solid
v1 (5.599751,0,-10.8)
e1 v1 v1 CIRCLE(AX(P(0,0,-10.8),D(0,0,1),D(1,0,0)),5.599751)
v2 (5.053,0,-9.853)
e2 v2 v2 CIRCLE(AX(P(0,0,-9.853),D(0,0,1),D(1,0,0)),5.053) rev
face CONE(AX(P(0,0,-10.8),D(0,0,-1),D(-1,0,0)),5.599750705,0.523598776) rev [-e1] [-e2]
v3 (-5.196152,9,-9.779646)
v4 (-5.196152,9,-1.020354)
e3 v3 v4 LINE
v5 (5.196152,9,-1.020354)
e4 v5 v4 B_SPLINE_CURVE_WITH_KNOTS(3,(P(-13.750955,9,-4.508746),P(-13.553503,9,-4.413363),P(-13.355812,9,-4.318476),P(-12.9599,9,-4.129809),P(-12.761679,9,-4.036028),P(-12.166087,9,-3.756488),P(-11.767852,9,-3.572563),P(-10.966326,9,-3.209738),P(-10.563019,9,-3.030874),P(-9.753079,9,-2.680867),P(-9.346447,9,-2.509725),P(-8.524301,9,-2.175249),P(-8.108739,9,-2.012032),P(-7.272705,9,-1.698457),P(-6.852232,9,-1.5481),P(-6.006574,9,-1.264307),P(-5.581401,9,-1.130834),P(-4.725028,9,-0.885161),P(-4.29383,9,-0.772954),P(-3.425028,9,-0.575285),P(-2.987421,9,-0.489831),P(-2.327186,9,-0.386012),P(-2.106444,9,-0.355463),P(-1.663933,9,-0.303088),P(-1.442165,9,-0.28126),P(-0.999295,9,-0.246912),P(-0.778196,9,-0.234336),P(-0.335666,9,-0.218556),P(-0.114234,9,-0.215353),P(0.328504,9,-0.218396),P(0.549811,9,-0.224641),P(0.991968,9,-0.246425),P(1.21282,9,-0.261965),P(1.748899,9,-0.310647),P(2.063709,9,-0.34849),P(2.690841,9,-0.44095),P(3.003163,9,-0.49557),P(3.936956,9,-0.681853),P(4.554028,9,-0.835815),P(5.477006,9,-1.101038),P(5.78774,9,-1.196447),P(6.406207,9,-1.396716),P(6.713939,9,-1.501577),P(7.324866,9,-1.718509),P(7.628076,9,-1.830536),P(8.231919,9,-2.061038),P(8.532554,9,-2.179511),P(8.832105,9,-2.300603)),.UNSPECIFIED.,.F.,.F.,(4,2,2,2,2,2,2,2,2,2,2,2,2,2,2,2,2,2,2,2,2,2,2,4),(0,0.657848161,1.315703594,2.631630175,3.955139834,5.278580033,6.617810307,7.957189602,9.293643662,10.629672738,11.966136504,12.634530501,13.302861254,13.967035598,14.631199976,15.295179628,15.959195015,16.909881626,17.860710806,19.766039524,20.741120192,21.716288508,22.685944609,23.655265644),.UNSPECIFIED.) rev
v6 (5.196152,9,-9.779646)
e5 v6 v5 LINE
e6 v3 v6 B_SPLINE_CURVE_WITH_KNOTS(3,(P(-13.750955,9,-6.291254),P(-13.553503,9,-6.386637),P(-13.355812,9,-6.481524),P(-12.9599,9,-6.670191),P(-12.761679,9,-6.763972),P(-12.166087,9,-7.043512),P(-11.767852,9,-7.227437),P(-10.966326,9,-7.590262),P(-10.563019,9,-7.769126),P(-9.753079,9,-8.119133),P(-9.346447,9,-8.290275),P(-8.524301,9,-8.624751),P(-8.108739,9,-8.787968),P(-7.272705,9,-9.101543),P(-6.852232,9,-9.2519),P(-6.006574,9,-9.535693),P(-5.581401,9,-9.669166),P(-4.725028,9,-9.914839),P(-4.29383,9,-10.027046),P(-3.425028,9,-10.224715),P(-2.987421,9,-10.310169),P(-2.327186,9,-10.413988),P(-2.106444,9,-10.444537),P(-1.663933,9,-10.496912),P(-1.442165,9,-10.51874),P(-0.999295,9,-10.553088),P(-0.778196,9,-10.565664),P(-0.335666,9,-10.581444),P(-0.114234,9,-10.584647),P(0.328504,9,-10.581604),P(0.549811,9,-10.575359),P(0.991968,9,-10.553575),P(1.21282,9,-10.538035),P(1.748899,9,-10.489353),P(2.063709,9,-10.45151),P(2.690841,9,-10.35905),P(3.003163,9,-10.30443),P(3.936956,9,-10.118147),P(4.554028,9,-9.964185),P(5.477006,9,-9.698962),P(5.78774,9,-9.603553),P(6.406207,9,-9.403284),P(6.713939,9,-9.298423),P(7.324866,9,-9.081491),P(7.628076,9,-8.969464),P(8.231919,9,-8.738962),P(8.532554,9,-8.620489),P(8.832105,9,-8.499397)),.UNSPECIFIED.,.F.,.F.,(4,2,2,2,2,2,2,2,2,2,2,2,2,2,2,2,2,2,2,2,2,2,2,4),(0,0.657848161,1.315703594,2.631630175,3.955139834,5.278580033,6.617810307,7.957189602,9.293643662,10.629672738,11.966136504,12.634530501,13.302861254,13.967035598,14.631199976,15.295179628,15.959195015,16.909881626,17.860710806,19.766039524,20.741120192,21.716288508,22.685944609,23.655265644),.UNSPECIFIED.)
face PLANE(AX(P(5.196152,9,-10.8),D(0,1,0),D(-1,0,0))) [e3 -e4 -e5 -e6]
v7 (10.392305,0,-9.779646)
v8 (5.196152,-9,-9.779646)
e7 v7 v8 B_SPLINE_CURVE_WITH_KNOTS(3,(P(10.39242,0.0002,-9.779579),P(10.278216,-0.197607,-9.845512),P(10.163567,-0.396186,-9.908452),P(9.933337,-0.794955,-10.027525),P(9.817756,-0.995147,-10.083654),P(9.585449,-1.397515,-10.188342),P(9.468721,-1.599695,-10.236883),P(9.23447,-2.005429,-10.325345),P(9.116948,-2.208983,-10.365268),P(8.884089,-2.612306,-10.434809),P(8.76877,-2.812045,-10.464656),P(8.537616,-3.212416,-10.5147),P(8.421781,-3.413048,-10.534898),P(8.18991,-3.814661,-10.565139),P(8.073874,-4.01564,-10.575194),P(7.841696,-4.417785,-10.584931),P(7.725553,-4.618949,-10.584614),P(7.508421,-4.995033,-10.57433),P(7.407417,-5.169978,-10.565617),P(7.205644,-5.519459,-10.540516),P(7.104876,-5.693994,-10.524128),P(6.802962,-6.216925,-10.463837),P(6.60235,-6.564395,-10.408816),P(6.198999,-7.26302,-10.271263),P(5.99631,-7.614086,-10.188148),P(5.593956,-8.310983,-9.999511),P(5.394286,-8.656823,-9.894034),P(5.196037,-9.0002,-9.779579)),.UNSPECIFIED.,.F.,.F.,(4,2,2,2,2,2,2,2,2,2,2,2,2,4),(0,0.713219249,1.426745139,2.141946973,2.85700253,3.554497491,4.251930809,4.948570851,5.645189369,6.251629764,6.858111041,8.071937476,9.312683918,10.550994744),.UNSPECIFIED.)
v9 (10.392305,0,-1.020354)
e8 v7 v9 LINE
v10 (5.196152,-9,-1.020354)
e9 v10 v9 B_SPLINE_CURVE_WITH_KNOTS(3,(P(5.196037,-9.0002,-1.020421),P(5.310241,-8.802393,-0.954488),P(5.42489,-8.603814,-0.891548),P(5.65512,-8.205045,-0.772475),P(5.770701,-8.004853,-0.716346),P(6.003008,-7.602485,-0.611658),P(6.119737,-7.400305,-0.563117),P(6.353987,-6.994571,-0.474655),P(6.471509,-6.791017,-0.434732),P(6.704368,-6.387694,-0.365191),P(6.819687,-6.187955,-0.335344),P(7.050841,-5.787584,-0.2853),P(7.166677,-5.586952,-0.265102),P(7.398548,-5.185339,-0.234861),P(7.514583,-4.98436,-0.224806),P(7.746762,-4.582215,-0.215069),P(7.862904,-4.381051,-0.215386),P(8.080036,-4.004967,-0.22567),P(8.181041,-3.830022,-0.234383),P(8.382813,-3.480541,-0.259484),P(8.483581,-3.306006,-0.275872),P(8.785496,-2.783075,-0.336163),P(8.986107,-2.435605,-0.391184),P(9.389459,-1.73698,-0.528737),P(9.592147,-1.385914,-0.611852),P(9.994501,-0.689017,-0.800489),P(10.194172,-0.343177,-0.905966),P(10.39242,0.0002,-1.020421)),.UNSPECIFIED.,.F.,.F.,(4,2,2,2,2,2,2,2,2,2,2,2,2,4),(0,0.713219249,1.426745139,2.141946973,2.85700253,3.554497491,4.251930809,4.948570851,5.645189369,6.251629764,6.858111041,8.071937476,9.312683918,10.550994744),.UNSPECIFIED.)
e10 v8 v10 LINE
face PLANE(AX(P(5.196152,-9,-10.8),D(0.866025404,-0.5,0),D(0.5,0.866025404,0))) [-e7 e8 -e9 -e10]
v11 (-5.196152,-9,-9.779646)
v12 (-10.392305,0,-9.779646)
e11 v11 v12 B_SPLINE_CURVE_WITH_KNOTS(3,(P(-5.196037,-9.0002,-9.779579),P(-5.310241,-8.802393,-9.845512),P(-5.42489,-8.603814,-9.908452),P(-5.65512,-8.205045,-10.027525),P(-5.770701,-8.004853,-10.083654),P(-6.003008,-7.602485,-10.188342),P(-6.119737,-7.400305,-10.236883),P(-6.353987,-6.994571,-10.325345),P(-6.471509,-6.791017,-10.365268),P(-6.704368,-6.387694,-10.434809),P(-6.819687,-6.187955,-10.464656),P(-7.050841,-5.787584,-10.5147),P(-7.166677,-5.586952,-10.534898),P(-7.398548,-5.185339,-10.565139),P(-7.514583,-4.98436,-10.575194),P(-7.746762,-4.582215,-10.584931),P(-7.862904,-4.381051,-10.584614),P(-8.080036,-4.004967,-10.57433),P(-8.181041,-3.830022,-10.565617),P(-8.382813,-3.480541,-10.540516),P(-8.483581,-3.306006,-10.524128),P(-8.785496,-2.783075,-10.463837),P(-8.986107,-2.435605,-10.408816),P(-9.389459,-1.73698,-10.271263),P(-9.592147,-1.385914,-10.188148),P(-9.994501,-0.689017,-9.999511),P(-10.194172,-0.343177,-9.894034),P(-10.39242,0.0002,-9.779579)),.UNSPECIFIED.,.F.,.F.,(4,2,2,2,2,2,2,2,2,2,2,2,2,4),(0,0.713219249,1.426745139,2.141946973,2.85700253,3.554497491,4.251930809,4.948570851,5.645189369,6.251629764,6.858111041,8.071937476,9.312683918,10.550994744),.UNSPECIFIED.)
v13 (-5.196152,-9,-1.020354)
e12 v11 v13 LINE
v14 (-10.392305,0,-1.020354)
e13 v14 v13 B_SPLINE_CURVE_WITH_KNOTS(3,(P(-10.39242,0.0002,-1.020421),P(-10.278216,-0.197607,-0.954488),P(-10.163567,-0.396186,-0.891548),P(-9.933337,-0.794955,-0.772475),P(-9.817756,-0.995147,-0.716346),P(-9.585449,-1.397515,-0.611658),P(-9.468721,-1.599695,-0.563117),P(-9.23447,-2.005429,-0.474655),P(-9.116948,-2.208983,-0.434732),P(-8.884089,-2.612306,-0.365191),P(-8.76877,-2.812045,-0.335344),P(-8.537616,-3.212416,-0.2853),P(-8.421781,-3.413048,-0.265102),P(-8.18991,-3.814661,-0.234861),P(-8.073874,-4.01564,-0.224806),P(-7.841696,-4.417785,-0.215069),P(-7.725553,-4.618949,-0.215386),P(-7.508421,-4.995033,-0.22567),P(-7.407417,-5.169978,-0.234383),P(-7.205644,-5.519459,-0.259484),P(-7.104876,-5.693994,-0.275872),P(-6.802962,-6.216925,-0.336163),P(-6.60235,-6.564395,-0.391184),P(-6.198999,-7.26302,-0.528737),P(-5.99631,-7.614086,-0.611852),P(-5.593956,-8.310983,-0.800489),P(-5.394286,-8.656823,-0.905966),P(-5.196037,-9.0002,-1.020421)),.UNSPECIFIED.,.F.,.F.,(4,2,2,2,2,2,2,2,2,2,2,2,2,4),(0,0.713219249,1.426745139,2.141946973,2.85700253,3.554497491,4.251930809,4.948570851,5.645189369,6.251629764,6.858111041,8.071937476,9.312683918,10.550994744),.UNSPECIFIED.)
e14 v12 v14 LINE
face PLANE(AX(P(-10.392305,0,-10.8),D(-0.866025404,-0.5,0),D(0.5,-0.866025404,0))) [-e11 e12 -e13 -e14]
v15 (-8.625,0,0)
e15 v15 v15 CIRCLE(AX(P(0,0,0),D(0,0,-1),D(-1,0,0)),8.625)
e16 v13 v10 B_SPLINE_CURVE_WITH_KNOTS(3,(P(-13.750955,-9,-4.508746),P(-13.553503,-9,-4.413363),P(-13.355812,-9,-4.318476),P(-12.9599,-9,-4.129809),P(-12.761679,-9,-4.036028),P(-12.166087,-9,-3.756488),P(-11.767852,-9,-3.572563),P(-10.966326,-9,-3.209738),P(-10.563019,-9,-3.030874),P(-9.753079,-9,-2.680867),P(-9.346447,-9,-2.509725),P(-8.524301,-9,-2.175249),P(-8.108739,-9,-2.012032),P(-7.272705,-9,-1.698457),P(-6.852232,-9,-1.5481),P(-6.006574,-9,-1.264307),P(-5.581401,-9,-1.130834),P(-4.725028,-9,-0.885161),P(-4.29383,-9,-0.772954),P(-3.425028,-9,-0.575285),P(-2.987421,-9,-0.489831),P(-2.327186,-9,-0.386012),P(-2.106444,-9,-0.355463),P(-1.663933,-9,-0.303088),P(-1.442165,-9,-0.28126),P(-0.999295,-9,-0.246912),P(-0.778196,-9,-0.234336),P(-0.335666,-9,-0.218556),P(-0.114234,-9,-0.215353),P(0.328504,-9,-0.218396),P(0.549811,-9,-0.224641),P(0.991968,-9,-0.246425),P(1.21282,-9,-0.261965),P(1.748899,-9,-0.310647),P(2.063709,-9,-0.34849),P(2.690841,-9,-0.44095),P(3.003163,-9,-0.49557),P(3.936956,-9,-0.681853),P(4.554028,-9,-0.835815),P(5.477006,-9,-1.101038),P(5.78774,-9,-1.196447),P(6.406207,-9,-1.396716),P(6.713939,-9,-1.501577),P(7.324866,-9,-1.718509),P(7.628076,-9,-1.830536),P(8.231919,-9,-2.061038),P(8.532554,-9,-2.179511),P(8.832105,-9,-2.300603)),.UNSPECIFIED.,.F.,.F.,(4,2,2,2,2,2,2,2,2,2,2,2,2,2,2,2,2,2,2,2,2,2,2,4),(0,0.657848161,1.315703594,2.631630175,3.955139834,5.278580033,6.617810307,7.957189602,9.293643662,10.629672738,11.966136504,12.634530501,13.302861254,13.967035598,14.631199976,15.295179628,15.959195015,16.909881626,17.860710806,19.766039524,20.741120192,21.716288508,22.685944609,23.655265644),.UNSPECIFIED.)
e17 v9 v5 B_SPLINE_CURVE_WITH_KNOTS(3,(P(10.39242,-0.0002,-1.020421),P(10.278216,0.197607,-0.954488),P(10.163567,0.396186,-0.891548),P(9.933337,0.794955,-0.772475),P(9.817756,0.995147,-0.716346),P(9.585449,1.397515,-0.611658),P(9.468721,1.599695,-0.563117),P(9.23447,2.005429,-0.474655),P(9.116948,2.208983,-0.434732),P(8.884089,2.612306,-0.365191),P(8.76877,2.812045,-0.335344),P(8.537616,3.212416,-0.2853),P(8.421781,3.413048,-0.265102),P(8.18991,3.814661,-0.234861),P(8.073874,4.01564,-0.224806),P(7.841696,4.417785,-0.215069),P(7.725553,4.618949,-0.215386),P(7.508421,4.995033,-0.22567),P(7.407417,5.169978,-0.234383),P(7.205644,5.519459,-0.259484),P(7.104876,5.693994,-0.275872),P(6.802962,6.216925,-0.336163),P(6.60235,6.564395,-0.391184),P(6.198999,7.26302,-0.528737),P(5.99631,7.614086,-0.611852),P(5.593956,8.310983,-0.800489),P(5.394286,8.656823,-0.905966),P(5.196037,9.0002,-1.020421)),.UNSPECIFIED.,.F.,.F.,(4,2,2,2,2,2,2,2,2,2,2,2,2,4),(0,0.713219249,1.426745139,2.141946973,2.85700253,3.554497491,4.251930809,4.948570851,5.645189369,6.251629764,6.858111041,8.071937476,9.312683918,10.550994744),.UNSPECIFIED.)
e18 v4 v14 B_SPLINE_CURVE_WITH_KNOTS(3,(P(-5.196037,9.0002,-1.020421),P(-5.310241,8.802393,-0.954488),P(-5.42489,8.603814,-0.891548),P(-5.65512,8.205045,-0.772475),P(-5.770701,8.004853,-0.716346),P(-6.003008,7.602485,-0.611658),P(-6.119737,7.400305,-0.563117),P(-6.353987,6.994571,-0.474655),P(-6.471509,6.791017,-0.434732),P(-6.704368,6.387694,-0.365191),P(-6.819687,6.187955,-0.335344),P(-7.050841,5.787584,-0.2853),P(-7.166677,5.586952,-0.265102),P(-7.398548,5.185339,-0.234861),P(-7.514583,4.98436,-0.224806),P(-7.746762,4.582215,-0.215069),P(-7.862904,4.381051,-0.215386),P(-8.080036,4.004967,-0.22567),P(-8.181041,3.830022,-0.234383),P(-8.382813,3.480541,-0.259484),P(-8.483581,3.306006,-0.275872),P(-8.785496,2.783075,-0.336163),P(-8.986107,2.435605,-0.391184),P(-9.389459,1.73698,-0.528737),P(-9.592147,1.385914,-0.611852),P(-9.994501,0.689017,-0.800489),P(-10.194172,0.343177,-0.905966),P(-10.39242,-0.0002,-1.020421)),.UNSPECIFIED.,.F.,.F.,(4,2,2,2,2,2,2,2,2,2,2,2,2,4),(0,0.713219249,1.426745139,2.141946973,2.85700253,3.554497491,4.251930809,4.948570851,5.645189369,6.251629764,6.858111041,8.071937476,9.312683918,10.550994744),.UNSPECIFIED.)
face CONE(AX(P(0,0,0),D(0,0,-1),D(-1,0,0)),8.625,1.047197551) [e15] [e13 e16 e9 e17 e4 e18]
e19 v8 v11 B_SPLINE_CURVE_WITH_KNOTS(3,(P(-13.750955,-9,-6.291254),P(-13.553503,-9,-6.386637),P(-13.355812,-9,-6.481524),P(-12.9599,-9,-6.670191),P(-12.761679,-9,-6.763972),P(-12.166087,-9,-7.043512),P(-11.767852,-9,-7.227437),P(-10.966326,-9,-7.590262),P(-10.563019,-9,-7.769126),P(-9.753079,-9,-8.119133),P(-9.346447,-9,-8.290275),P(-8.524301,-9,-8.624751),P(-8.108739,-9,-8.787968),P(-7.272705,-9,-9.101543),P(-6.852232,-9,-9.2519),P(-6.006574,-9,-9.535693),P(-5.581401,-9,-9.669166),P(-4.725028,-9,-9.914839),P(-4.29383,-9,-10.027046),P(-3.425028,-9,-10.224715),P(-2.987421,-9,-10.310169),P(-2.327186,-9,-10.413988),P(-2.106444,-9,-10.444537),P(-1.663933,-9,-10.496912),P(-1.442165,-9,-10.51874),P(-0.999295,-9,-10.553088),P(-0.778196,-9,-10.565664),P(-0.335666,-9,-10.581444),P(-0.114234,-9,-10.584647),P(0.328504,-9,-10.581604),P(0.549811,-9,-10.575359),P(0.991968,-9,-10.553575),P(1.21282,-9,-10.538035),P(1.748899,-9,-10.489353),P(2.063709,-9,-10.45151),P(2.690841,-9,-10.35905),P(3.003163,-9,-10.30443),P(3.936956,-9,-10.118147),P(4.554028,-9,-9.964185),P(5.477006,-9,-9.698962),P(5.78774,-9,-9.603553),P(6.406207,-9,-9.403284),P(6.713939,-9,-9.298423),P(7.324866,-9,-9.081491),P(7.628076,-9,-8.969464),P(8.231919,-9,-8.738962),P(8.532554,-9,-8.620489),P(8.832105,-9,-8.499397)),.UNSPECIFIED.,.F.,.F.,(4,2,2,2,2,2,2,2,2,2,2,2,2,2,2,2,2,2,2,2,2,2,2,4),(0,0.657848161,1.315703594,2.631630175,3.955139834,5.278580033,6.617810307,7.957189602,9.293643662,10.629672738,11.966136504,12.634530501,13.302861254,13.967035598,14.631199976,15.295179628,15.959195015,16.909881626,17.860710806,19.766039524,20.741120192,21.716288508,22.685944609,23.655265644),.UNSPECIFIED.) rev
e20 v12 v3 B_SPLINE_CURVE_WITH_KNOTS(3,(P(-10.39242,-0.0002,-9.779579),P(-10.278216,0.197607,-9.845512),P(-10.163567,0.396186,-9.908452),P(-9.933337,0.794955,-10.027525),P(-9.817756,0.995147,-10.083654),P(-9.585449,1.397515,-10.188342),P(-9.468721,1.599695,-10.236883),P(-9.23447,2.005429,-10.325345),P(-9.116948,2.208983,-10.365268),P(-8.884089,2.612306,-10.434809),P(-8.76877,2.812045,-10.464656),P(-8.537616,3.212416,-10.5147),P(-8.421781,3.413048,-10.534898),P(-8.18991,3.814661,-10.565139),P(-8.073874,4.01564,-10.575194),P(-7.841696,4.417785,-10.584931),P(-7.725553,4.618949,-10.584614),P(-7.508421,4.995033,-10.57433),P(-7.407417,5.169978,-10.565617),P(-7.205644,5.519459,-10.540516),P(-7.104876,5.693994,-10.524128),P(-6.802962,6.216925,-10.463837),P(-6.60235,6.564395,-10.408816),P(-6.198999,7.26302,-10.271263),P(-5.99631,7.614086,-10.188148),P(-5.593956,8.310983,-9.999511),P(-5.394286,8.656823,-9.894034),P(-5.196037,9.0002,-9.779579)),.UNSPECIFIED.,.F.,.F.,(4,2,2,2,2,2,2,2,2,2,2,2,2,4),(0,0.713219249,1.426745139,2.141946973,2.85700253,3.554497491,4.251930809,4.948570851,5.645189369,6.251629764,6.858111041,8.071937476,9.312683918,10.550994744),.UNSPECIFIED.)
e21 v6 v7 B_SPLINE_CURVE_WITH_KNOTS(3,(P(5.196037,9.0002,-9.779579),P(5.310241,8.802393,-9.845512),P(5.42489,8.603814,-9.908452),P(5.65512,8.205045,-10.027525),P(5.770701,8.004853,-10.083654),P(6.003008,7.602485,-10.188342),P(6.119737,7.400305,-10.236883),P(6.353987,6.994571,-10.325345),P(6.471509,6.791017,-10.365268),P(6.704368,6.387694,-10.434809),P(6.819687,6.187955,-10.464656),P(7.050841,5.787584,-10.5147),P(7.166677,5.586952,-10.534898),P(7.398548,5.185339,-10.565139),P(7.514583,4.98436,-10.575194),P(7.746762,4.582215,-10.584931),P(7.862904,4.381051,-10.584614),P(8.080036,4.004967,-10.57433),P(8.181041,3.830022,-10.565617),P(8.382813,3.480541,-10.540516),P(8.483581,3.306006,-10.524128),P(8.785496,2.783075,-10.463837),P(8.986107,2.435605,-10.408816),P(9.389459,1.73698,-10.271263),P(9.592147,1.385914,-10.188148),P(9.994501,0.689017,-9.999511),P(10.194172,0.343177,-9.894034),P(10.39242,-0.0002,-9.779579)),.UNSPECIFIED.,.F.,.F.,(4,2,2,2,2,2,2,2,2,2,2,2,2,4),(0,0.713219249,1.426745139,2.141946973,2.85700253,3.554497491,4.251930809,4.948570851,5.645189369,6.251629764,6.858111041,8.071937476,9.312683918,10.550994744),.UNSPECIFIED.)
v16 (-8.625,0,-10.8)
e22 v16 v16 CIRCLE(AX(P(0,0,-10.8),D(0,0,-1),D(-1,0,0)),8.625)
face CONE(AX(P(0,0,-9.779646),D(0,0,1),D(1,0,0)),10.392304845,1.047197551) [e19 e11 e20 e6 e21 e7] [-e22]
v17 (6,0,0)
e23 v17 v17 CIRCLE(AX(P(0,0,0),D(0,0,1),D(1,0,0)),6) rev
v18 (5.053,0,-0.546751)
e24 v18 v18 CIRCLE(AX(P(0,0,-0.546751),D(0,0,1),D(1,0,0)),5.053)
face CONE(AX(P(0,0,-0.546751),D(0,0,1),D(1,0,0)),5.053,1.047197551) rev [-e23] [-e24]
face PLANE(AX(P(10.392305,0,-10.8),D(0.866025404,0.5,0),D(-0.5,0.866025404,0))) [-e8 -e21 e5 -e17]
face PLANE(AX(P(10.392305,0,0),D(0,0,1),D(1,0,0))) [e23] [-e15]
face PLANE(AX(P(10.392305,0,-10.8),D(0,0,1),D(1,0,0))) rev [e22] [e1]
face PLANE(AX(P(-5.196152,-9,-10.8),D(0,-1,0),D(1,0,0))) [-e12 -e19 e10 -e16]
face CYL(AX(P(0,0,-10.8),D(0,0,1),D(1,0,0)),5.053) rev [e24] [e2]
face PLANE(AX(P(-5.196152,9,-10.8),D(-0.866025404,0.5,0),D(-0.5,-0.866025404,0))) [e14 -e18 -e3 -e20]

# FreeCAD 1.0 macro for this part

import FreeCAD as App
import Part
import Sketcher

V = App.Vector
Q = App.Units.Quantity


def edges_at(feature, points):
    """Names of the edges that pass closest to the given points."""
    edges = feature.Shape.Edges
    near = lambda p: min(range(len(edges)), key=lambda i: edges[i].distToShape(Part.Vertex(*p))[0])
    return sorted({f"Edge{near(p) + 1}" for p in points})

doc = App.newDocument("Part")
body = doc.addObject("PartDesign::Body", "Body")

sketch1 = body.newObject("Sketcher::SketchObject", "Sketch")
sketch1.AttachmentSupport = (doc.getObject("XY_Plane"), [""])
sketch1.MapMode = "FlatFace"
sketch1.addGeometry(Part.LineSegment(V(10, 0, 0), V(5, 9, 0)), False)
sketch1.addGeometry(Part.LineSegment(V(5, 9, 0), V(-5, 9, 0)), False)
sketch1.addGeometry(Part.LineSegment(V(-5, 9, 0), V(-10, 0, 0)), False)
sketch1.addGeometry(Part.LineSegment(V(-10, 0, 0), V(-5, -9, 0)), False)
sketch1.addGeometry(Part.LineSegment(V(-5, -9, 0), V(5, -9, 0)), False)
sketch1.addGeometry(Part.LineSegment(V(5, -9, 0), V(10, 0, 0)), False)
sketch1.addGeometry(Part.Circle(V(0, 0, 0), V(0, 0, 1), 5), False)
sketch1.addConstraint(Sketcher.Constraint("Coincident", 0, 2, 1, 1))
sketch1.addConstraint(Sketcher.Constraint("Coincident", 1, 2, 2, 1))
sketch1.addConstraint(Sketcher.Constraint("Coincident", 2, 2, 3, 1))
sketch1.addConstraint(Sketcher.Constraint("Coincident", 3, 2, 4, 1))
sketch1.addConstraint(Sketcher.Constraint("Coincident", 4, 2, 5, 1))
sketch1.addConstraint(Sketcher.Constraint("Coincident", 5, 2, 0, 1))
sketch1.addConstraint(Sketcher.Constraint("Horizontal", 1))
sketch1.addConstraint(Sketcher.Constraint("Horizontal", 4))
sketch1.addConstraint(Sketcher.Constraint("Coincident", 6, 3, -1, 1))
sketch1.addConstraint(Sketcher.Constraint("Symmetric", 0, 2, 3, 2, -1, 1))
sketch1.addConstraint(Sketcher.Constraint("Symmetric", 2, 2, 5, 2, -1, 1))
sketch1.addConstraint(Sketcher.Constraint("PointOnObject", 2, 2, -1))
sketch1.addConstraint(Sketcher.Constraint("Parallel", 2, 5))
sketch1.addConstraint(Sketcher.Constraint("Vertical", 1, 2, 3, 2))
sketch1.addConstraint(Sketcher.Constraint("Angle", 0, Q("120 deg")))
sketch1.addConstraint(Sketcher.Constraint("Diameter", 6, 10.106))
sketch1.addConstraint(Sketcher.Constraint("DistanceY", -1, 1, 0, 2, 9.0))
sketch1.addConstraint(Sketcher.Constraint("DistanceX", 1, 2, 1, 1, 10.392305))
pad1 = body.newObject("PartDesign::Pad", "Pad")
pad1.Profile = sketch1
pad1.Length = 10.8
pad1.Reversed = True

sketch2 = body.newObject("Sketcher::SketchObject", "Sketch001")
sketch2.AttachmentSupport = (doc.getObject("XZ_Plane"), [""])
sketch2.MapMode = "FlatFace"
sketch2.addGeometry(Part.LineSegment(V(-8.6, -10.8, 0), V(-10.4, -10.8, 0)), False)
sketch2.addGeometry(Part.LineSegment(V(-10.4, -10.8, 0), V(-10.4, -9.8, 0)), False)
sketch2.addGeometry(Part.LineSegment(V(-10.4, -9.8, 0), V(-8.6, -10.8, 0)), False)
sketch2.addGeometry(Part.LineSegment(V(-10.4, -1, 0), V(-10.4, 0, 0)), False)
sketch2.addGeometry(Part.LineSegment(V(-10.4, 0, 0), V(-8.6, 0, 0)), False)
sketch2.addGeometry(Part.LineSegment(V(-8.6, 0, 0), V(-10.4, -1, 0)), False)
sketch2.addConstraint(Sketcher.Constraint("Coincident", 0, 2, 1, 1))
sketch2.addConstraint(Sketcher.Constraint("Coincident", 1, 2, 2, 1))
sketch2.addConstraint(Sketcher.Constraint("Coincident", 2, 2, 0, 1))
sketch2.addConstraint(Sketcher.Constraint("Coincident", 3, 2, 4, 1))
sketch2.addConstraint(Sketcher.Constraint("Coincident", 4, 2, 5, 1))
sketch2.addConstraint(Sketcher.Constraint("Coincident", 5, 2, 3, 1))
sketch2.addConstraint(Sketcher.Constraint("Horizontal", 0))
sketch2.addConstraint(Sketcher.Constraint("Vertical", 1))
sketch2.addConstraint(Sketcher.Constraint("Vertical", 3))
sketch2.addConstraint(Sketcher.Constraint("Horizontal", 4))
sketch2.addConstraint(Sketcher.Constraint("PointOnObject", 3, 2, -1))
sketch2.addConstraint(Sketcher.Constraint("Vertical", 1, 2, 3, 2))
sketch2.addConstraint(Sketcher.Constraint("Vertical", 2, 2, 4, 2))
sketch2.addConstraint(Sketcher.Constraint("Equal", 1, 3))
sketch2.addConstraint(Sketcher.Constraint("Angle", 2, Q("-30 deg")))
sketch2.addConstraint(Sketcher.Constraint("DistanceY", 0, 2, -1, 1, 10.8))
sketch2.addConstraint(Sketcher.Constraint("DistanceX", 2, 2, -1, 1, 8.625))
sketch2.addConstraint(Sketcher.Constraint("DistanceX", 0, 2, 0, 1, 1.767305))
groove = body.newObject("PartDesign::Groove", "Groove")
groove.Profile = sketch2
groove.ReferenceAxis = (sketch2, ["V_Axis"])
groove.Angle = 360
doc.recompute()

chamfer = body.newObject("PartDesign::Chamfer", "Chamfer")
chamfer.Base = (groove, edges_at(groove, [(-5.053, 0, -10.8)]))
chamfer.ChamferType = "Two distances"
chamfer.Size = 0.947
chamfer.Size2 = 0.546751
chamfer.FlipDirection = True
doc.recompute()

chamfer2 = body.newObject("PartDesign::Chamfer", "Chamfer001")
chamfer2.Base = (chamfer, edges_at(chamfer, [(-5.053, 0, 0)]))
chamfer2.ChamferType = "Two distances"
chamfer2.Size = 0.947
chamfer2.Size2 = 0.546751
chamfer2.FlipDirection = True

doc.recompute()
